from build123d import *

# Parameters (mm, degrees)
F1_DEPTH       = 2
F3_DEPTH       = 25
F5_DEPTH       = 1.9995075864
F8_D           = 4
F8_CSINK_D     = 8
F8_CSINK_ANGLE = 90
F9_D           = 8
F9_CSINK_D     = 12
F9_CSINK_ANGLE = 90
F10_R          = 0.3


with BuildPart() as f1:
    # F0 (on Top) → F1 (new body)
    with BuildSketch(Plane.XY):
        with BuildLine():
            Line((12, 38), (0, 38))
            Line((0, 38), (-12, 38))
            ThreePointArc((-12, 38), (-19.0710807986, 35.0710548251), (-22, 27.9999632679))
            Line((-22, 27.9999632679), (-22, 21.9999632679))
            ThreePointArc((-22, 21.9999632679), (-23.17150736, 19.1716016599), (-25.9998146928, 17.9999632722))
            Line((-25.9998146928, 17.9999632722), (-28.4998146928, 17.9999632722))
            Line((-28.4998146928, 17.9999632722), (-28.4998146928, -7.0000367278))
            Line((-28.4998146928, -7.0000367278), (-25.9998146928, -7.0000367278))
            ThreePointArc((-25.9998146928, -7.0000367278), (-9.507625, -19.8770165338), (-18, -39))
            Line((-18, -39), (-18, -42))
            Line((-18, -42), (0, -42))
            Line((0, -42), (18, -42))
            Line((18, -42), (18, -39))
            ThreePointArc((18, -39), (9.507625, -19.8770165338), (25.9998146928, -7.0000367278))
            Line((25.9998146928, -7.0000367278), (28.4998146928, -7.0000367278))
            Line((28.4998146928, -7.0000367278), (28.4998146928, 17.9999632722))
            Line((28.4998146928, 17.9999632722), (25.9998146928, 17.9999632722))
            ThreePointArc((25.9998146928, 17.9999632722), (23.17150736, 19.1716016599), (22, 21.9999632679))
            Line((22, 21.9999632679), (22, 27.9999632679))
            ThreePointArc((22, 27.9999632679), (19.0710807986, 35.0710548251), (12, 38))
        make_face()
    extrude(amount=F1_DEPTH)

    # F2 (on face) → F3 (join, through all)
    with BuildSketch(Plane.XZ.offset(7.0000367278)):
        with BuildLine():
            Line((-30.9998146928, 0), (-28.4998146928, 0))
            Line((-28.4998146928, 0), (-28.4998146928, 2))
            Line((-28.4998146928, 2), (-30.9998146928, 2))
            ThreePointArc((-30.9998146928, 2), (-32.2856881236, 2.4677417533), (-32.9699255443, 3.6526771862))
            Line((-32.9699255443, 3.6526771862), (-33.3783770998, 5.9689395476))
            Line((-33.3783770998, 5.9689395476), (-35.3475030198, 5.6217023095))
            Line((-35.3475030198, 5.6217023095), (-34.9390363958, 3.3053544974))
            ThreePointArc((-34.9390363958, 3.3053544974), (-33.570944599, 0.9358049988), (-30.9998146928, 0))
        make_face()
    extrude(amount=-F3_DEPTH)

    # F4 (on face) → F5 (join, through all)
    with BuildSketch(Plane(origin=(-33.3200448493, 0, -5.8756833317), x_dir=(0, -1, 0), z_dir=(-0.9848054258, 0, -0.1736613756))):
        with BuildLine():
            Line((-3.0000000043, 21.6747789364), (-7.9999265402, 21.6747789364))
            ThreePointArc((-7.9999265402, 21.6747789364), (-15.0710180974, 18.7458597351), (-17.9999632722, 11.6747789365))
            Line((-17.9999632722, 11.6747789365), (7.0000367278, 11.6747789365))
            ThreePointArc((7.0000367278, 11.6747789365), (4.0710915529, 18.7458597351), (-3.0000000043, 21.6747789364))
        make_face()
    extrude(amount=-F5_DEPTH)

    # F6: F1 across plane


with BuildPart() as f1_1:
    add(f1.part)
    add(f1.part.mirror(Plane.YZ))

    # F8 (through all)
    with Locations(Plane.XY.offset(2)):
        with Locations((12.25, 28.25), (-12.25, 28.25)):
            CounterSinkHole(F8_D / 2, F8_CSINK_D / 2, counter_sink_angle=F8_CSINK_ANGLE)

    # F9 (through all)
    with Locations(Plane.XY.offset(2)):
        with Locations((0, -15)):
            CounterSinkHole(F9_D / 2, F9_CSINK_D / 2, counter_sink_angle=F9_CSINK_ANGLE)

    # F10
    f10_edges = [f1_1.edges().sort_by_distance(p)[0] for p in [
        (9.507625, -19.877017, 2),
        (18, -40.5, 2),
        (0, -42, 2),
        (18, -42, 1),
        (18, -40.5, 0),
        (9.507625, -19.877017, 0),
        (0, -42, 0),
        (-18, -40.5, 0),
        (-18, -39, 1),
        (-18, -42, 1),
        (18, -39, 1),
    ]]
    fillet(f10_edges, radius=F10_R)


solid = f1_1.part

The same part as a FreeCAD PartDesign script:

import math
import FreeCAD as App
import Part
import Sketcher


def edges_at(feature, points):
    """Names of the edges that pass closest to the given points."""
    edges = feature.Shape.Edges
    near = lambda p: min(range(len(edges)), key=lambda i: edges[i].distToShape(Part.Vertex(*p))[0])
    return sorted({f"Edge{near(p) + 1}" for p in points})

doc = App.newDocument("Part")
body = doc.addObject("PartDesign::Body", "Body")

# Sketch on XY plane
sketch1 = doc.addObject("Sketcher::SketchObject", "Sketch")
body.addObject(sketch1)
sketch1.AttachmentSupport = (doc.XY_Plane, [""])
sketch1.MapMode = "FlatFace"
sketch1.addGeometry([
    Part.LineSegment(App.Vector(12, 38, 0), App.Vector(-12, 38, 0)),  # 0
    Part.ArcOfCircle(Part.Circle(App.Vector(-12, 28, 0), App.Vector(0, 0, 1), 10), math.radians(90), math.radians(180)),  # 1
    Part.LineSegment(App.Vector(-22, 28, 0), App.Vector(-22, 22, 0)),  # 2
    Part.ArcOfCircle(Part.Circle(App.Vector(-26, 22, 0), App.Vector(0, 0, 1), 4), math.radians(-90), math.radians(0)),  # 3
    Part.LineSegment(App.Vector(-26, 18, 0), App.Vector(-28.5, 18, 0)),  # 4
    Part.LineSegment(App.Vector(-28.5, 18, 0), App.Vector(-28.5, -7, 0)),  # 5
    Part.LineSegment(App.Vector(-28.5, -7, 0), App.Vector(-26, -7, 0)),  # 6
    Part.ArcOfCircle(Part.Circle(App.Vector(-26, -24, 0), App.Vector(0, 0, 1), 17), math.radians(-62), math.radians(90)),  # 7
    Part.LineSegment(App.Vector(-18, -39, 0), App.Vector(-18, -42, 0)),  # 8
    Part.LineSegment(App.Vector(-18, -42, 0), App.Vector(18, -42, 0)),  # 9
    Part.LineSegment(App.Vector(18, -42, 0), App.Vector(18, -39, 0)),  # 10
    Part.ArcOfCircle(Part.Circle(App.Vector(26, -24, 0), App.Vector(0, 0, 1), 17), math.radians(90), math.radians(242)),  # 11
    Part.LineSegment(App.Vector(26, -7, 0), App.Vector(28.5, -7, 0)),  # 12
    Part.LineSegment(App.Vector(28.5, -7, 0), App.Vector(28.5, 18, 0)),  # 13
    Part.LineSegment(App.Vector(28.5, 18, 0), App.Vector(26, 18, 0)),  # 14
    Part.ArcOfCircle(Part.Circle(App.Vector(26, 22, 0), App.Vector(0, 0, 1), 4), math.radians(180), math.radians(270)),  # 15
    Part.LineSegment(App.Vector(22, 22, 0), App.Vector(22, 28, 0)),  # 16
    Part.ArcOfCircle(Part.Circle(App.Vector(12, 28, 0), App.Vector(0, 0, 1), 10), math.radians(0), math.radians(90)),  # 17
], False)
sketch1.addConstraint([
    Sketcher.Constraint("Tangent", 0, 2, 1, 1),
    Sketcher.Constraint("Coincident", 1, 2, 2, 1),
    Sketcher.Constraint("Tangent", 2, 2, 3, 2),
    Sketcher.Constraint("Coincident", 3, 1, 4, 1),
    Sketcher.Constraint("Coincident", 4, 2, 5, 1),
    Sketcher.Constraint("Coincident", 5, 2, 6, 1),
    Sketcher.Constraint("Coincident", 6, 2, 7, 2),
    Sketcher.Constraint("Coincident", 7, 1, 8, 1),
    Sketcher.Constraint("Coincident", 8, 2, 9, 1),
    Sketcher.Constraint("Coincident", 9, 2, 10, 1),
    Sketcher.Constraint("Coincident", 10, 2, 11, 2),
    Sketcher.Constraint("Coincident", 11, 1, 12, 1),
    Sketcher.Constraint("Coincident", 12, 2, 13, 1),
    Sketcher.Constraint("Coincident", 13, 2, 14, 1),
    Sketcher.Constraint("Coincident", 14, 2, 15, 2),
    Sketcher.Constraint("Tangent", 15, 1, 16, 1),
    Sketcher.Constraint("Coincident", 16, 2, 17, 1),
    Sketcher.Constraint("Tangent", 17, 2, 0, 1),
    Sketcher.Constraint("Horizontal", 0),
    Sketcher.Constraint("Vertical", 2),
    Sketcher.Constraint("Horizontal", 4),
    Sketcher.Constraint("Vertical", 5),
    Sketcher.Constraint("Horizontal", 6),
    Sketcher.Constraint("Vertical", 8),
    Sketcher.Constraint("Horizontal", 9),
    Sketcher.Constraint("Vertical", 10),
    Sketcher.Constraint("Horizontal", 12),
    Sketcher.Constraint("Vertical", 13),
    Sketcher.Constraint("Horizontal", 14),
    Sketcher.Constraint("Vertical", 16),
    Sketcher.Constraint("Equal", 7, 11),
    Sketcher.Constraint("Equal", 3, 15),
    Sketcher.Constraint("Equal", 1, 17),
    Sketcher.Constraint("Symmetric", 7, 3, 11, 3, -2),
    Sketcher.Constraint("Symmetric", 3, 3, 15, 3, -2),
    Sketcher.Constraint("Horizontal", 7, 1, 10, 2),
    Sketcher.Constraint("Horizontal", 1, 2, 16, 2),
    Sketcher.Constraint("Vertical", 3, 1, 6, 2),
    Sketcher.Constraint("Vertical", 11, 1, 14, 2),
    Sketcher.Constraint("Equal", 6, 12),
    Sketcher.Constraint("Radius", 1, 10.0),
    Sketcher.Constraint("Radius", 3, 4.0),
    Sketcher.Constraint("Radius", 7, 17.0),
    Sketcher.Constraint("DistanceX", 0, 2, 0, 1, 24.0),
    Sketcher.Constraint("DistanceX", 9, 1, 9, 2, 36.0),
    Sketcher.Constraint("DistanceY", 2, 2, 2, 1, 6.0),
    Sketcher.Constraint("DistanceY", 5, 2, 5, 1, 25.0),
    Sketcher.Constraint("DistanceY", 8, 2, 8, 1, 3.0),
    Sketcher.Constraint("DistanceX", 4, 2, 4, 1, 2.5),
    Sketcher.Constraint("DistanceY", -1, 1, 1, 3, 28.0),
    Sketcher.Constraint("DistanceY", 7, 1, -1, 1, 39.0),
    Sketcher.Constraint("DistanceX", 7, 3, -1, 1, 26.000069),
    Sketcher.Constraint("DistanceX", 3, 1, -1, 1, 25.999815),
    Sketcher.Constraint("DistanceX", -1, 1, 11, 1, 25.999815),
])
pad1 = doc.addObject("PartDesign::Pad", "Pad")
body.addObject(pad1)
pad1.Profile = sketch1
pad1.Length = 2

# Sketch on XZ plane
sketch2 = doc.addObject("Sketcher::SketchObject", "Sketch001")
body.addObject(sketch2)
sketch2.AttachmentSupport = (doc.XZ_Plane, [""])
sketch2.MapMode = "FlatFace"
sketch2.AttachmentOffset = App.Placement(App.Vector(0, 0, 7.000037), App.Rotation())
sketch2.addGeometry([
    Part.LineSegment(App.Vector(-31, 0, 0), App.Vector(-28.5, 0, 0)),  # 0
    Part.LineSegment(App.Vector(-28.5, 0, 0), App.Vector(-28.5, 2, 0)),  # 1
    Part.LineSegment(App.Vector(-28.5, 2, 0), App.Vector(-31, 2, 0)),  # 2
    Part.ArcOfCircle(Part.Circle(App.Vector(-31, 4, 0), App.Vector(0, 0, 1), 2), math.radians(-170), math.radians(-90)),  # 3
    Part.LineSegment(App.Vector(-33, 3.7, 0), App.Vector(-33.4, 6, 0)),  # 4
    Part.LineSegment(App.Vector(-33.4, 6, 0), App.Vector(-35.3, 5.6, 0)),  # 5
    Part.LineSegment(App.Vector(-35.3, 5.6, 0), App.Vector(-34.9, 3.3, 0)),  # 6
    Part.ArcOfCircle(Part.Circle(App.Vector(-31, 4, 0), App.Vector(0, 0, 1), 4), math.radians(-170), math.radians(-90)),  # 7
], False)
sketch2.addConstraint([
    Sketcher.Constraint("Coincident", 0, 2, 1, 1),
    Sketcher.Constraint("Coincident", 1, 2, 2, 1),
    Sketcher.Constraint("Coincident", 2, 2, 3, 2),
    Sketcher.Constraint("Tangent", 3, 1, 4, 1),
    Sketcher.Constraint("Coincident", 4, 2, 5, 1),
    Sketcher.Constraint("Coincident", 5, 2, 6, 1),
    Sketcher.Constraint("Tangent", 6, 2, 7, 1),
    Sketcher.Constraint("Tangent", 7, 2, 0, 1),
    Sketcher.Constraint("Horizontal", 0),
    Sketcher.Constraint("Vertical", 1),
    Sketcher.Constraint("Horizontal", 2),
    Sketcher.Constraint("PointOnObject", 0, 2, -1),
    Sketcher.Constraint("Perpendicular", 4, 5),
    Sketcher.Constraint("Perpendicular", 5, 6),
    Sketcher.Constraint("Horizontal", 3, 3, 7, 3),
    Sketcher.Constraint("Vertical", 7, 3, 2, 2),
    Sketcher.Constraint("Radius", 3, 2.0),
    Sketcher.Constraint("Radius", 7, 4.0),
    Sketcher.Constraint("DistanceX", 0, 1, 0, 2, 2.5),
    Sketcher.Constraint("Distance", 4, 2.352),
    Sketcher.Constraint("DistanceX", 3, 3, 7, 3, 0.0005),
    Sketcher.Constraint("DistanceY", -1, 1, 4, 2, 5.96894),
    Sketcher.Constraint("DistanceX", 3, 3, -1, 1, 31.000315),
])
pad2 = doc.addObject("PartDesign::Pad", "Pad001")
body.addObject(pad2)
pad2.Profile = sketch2
pad2.Length = 25
pad2.Reversed = True

# Sketch on an angled plane
sketch3 = doc.addObject("Sketcher::SketchObject", "Sketch002")
body.addObject(sketch3)
sketch3.Placement = App.Placement(App.Vector(-33.320045, 0, -5.875683), App.Rotation(App.Vector(0, -1, 0), App.Vector(-0.173661376, 0, 0.984805426), App.Vector(-0.984805426, 0, -0.173661376), "ZXY"))
sketch3.addGeometry([
    Part.LineSegment(App.Vector(-3, 21.7, 0), App.Vector(-8, 21.7, 0)),
    Part.ArcOfCircle(Part.Circle(App.Vector(-8, 11.7, 0), App.Vector(0, 0, 1), 10), math.radians(90), math.radians(180)),
    Part.LineSegment(App.Vector(-18, 11.7, 0), App.Vector(7, 11.7, 0)),
    Part.ArcOfCircle(Part.Circle(App.Vector(-3, 11.7, 0), App.Vector(0, 0, 1), 10), math.radians(0), math.radians(90)),
], False)
sketch3.addConstraint([
    Sketcher.Constraint("Coincident", 0, 2, 1, 1),
    Sketcher.Constraint("Coincident", 1, 2, 2, 1),
    Sketcher.Constraint("Coincident", 2, 2, 3, 1),
    Sketcher.Constraint("Coincident", 3, 2, 0, 1),
    Sketcher.Constraint("Horizontal", 0),
    Sketcher.Constraint("Horizontal", 2),
    Sketcher.Constraint("Equal", 1, 3),
    Sketcher.Constraint("Horizontal", 3, 3, 1, 2),
    Sketcher.Constraint("Radius", 1, 10.0),
    Sketcher.Constraint("DistanceX", 2, 1, 2, 2, 25.0),
    Sketcher.Constraint("DistanceX", 3, 2, -1, 1, 3.0),
    Sketcher.Constraint("DistanceX", 0, 2, 0, 1, 4.999927),
    Sketcher.Constraint("DistanceY", -1, 1, 1, 3, 11.674779),
    Sketcher.Constraint("DistanceX", 1, 3, -1, 1, 7.999963),
])
pad3 = doc.addObject("PartDesign::Pad", "Pad002")
body.addObject(pad3)
pad3.Profile = sketch3
pad3.Length = 1.999508
pad3.Reversed = True
body2 = doc.addObject("PartDesign::Body", "Body001")
doc.recompute()

body2.BaseFeature = body
doc.recompute()

mirroring = doc.addObject("Part::Mirroring", "Mirroring")
mirroring.Source = body
mirroring.Base = App.Vector(0, 0, 0)
mirroring.Normal = App.Vector(1, 0, 0)
body3 = doc.addObject("PartDesign::Body", "Body002")
body3.BaseFeature = mirroring
boolean = doc.addObject("PartDesign::Boolean", "Boolean")
body2.addObject(boolean)
boolean.Type = "Fuse"
boolean.addObjects([body3])
doc.recompute()

# Sketch on XY plane
sketch4 = doc.addObject("Sketcher::SketchObject", "Sketch003")
body2.addObject(sketch4)
sketch4.AttachmentSupport = (doc.getObject("XY_Plane001"), [""])
sketch4.MapMode = "FlatFace"
sketch4.AttachmentOffset = App.Placement(App.Vector(0, 0, 2), App.Rotation())
sketch4.addGeometry([
    Part.Circle(App.Vector(12.2, 28.2, 0), App.Vector(0, 0, 1), 2),
    Part.Circle(App.Vector(-12.2, 28.2, 0), App.Vector(0, 0, 1), 2),
], False)
sketch4.addConstraint([
    Sketcher.Constraint("Equal", 0, 1),
    Sketcher.Constraint("Symmetric", 0, 3, 1, 3, -2),
    Sketcher.Constraint("Diameter", 0, 4.0),
    Sketcher.Constraint("DistanceX", 1, 3, 0, 3, 24.5),
    Sketcher.Constraint("DistanceY", -1, 1, 0, 3, 28.25),
])
doc.recompute()
hole = doc.addObject("PartDesign::Hole", "Hole")
body2.addObject(hole)
hole.Profile = sketch4
hole.ThreadType = "None"
hole.Diameter = 4
hole.DepthType = "ThroughAll"
hole.HoleCutType = "Countersink"
hole.HoleCutDiameter = 8
hole.HoleCutCountersinkAngle = 90

# Sketch on XY plane
sketch5 = doc.addObject("Sketcher::SketchObject", "Sketch004")
body2.addObject(sketch5)
sketch5.AttachmentSupport = (doc.getObject("XY_Plane001"), [""])
sketch5.MapMode = "FlatFace"
sketch5.AttachmentOffset = App.Placement(App.Vector(0, 0, 2), App.Rotation())
sketch5.addGeometry(Part.Circle(App.Vector(0, -15, 0), App.Vector(0, 0, 1), 4), False)
sketch5.addConstraint([
    Sketcher.Constraint("PointOnObject", 0, 3, -2),
    Sketcher.Constraint("Diameter", 0, 8.0),
    Sketcher.Constraint("DistanceY", 0, 3, -1, 1, 15.0),
])
doc.recompute()
hole2 = doc.addObject("PartDesign::Hole", "Hole001")
body2.addObject(hole2)
hole2.Profile = sketch5
hole2.ThreadType = "None"
hole2.Diameter = 8
hole2.DepthType = "ThroughAll"
hole2.HoleCutType = "Countersink"
hole2.HoleCutDiameter = 12
hole2.HoleCutCountersinkAngle = 90
doc.recompute()

fillet = doc.addObject("PartDesign::Fillet", "Fillet")
body2.addObject(fillet)
fillet.Base = (hole2, edges_at(hole2, [
    (9.508, -19.877, 2),
    (18, -40.5, 2),
    (0, -42, 2),
    (18, -42, 1),
    (18, -40.5, 0),
    (9.508, -19.877, 0),
    (0, -42, 0),
    (-18, -40.5, 0),
    (-18, -39, 1),
    (-18, -42, 1),
    (18, -39, 1),
]))
fillet.Radius = 0.3
mirroring.Visibility = False

doc.recompute()
